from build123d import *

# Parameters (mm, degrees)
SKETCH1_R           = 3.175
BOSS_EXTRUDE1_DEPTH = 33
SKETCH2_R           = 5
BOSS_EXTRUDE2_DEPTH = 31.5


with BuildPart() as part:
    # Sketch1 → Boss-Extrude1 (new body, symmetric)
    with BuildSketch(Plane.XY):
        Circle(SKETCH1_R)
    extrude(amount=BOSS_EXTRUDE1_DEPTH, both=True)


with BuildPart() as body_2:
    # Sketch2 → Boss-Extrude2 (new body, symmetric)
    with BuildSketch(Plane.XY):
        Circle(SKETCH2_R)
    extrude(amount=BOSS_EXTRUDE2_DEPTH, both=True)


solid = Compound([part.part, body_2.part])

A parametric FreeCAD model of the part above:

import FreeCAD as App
import Part
import Sketcher

V = App.Vector

doc = App.newDocument("Part")
body = doc.addObject("PartDesign::Body", "Body")

# Sketch on XY plane
sketch1 = body.newObject("Sketcher::SketchObject", "Sketch")
sketch1.AttachmentSupport = (doc.getObject("XY_Plane"), [""])
sketch1.MapMode = "FlatFace"
sketch1.addGeometry(Part.Circle(V(0, 0, 0), V(0, 0, 1), 3.175), False)
sketch1.addConstraint([
    Sketcher.Constraint("Coincident", 0, 3, -1, 1),
    Sketcher.Constraint("Diameter", 0, 6.35),
])
pad1 = body.newObject("PartDesign::Pad", "Pad")
pad1.Profile = sketch1
pad1.Length = 66
pad1.Midplane = True
body2 = doc.addObject("PartDesign::Body", "Body001")

# Sketch on XY plane
sketch2 = body2.newObject("Sketcher::SketchObject", "Sketch001")
sketch2.AttachmentSupport = (doc.getObject("XY_Plane001"), [""])
sketch2.MapMode = "FlatFace"
sketch2.addGeometry(Part.Circle(V(0, 0, 0), V(0, 0, 1), 5), False)
sketch2.addConstraint([
    Sketcher.Constraint("Coincident", 0, 3, -1, 1),
    Sketcher.Constraint("Diameter", 0, 10.0),
])
pad2 = body2.newObject("PartDesign::Pad", "Pad001")
pad2.Profile = sketch2
pad2.Length = 63
pad2.Midplane = True

doc.recompute()
